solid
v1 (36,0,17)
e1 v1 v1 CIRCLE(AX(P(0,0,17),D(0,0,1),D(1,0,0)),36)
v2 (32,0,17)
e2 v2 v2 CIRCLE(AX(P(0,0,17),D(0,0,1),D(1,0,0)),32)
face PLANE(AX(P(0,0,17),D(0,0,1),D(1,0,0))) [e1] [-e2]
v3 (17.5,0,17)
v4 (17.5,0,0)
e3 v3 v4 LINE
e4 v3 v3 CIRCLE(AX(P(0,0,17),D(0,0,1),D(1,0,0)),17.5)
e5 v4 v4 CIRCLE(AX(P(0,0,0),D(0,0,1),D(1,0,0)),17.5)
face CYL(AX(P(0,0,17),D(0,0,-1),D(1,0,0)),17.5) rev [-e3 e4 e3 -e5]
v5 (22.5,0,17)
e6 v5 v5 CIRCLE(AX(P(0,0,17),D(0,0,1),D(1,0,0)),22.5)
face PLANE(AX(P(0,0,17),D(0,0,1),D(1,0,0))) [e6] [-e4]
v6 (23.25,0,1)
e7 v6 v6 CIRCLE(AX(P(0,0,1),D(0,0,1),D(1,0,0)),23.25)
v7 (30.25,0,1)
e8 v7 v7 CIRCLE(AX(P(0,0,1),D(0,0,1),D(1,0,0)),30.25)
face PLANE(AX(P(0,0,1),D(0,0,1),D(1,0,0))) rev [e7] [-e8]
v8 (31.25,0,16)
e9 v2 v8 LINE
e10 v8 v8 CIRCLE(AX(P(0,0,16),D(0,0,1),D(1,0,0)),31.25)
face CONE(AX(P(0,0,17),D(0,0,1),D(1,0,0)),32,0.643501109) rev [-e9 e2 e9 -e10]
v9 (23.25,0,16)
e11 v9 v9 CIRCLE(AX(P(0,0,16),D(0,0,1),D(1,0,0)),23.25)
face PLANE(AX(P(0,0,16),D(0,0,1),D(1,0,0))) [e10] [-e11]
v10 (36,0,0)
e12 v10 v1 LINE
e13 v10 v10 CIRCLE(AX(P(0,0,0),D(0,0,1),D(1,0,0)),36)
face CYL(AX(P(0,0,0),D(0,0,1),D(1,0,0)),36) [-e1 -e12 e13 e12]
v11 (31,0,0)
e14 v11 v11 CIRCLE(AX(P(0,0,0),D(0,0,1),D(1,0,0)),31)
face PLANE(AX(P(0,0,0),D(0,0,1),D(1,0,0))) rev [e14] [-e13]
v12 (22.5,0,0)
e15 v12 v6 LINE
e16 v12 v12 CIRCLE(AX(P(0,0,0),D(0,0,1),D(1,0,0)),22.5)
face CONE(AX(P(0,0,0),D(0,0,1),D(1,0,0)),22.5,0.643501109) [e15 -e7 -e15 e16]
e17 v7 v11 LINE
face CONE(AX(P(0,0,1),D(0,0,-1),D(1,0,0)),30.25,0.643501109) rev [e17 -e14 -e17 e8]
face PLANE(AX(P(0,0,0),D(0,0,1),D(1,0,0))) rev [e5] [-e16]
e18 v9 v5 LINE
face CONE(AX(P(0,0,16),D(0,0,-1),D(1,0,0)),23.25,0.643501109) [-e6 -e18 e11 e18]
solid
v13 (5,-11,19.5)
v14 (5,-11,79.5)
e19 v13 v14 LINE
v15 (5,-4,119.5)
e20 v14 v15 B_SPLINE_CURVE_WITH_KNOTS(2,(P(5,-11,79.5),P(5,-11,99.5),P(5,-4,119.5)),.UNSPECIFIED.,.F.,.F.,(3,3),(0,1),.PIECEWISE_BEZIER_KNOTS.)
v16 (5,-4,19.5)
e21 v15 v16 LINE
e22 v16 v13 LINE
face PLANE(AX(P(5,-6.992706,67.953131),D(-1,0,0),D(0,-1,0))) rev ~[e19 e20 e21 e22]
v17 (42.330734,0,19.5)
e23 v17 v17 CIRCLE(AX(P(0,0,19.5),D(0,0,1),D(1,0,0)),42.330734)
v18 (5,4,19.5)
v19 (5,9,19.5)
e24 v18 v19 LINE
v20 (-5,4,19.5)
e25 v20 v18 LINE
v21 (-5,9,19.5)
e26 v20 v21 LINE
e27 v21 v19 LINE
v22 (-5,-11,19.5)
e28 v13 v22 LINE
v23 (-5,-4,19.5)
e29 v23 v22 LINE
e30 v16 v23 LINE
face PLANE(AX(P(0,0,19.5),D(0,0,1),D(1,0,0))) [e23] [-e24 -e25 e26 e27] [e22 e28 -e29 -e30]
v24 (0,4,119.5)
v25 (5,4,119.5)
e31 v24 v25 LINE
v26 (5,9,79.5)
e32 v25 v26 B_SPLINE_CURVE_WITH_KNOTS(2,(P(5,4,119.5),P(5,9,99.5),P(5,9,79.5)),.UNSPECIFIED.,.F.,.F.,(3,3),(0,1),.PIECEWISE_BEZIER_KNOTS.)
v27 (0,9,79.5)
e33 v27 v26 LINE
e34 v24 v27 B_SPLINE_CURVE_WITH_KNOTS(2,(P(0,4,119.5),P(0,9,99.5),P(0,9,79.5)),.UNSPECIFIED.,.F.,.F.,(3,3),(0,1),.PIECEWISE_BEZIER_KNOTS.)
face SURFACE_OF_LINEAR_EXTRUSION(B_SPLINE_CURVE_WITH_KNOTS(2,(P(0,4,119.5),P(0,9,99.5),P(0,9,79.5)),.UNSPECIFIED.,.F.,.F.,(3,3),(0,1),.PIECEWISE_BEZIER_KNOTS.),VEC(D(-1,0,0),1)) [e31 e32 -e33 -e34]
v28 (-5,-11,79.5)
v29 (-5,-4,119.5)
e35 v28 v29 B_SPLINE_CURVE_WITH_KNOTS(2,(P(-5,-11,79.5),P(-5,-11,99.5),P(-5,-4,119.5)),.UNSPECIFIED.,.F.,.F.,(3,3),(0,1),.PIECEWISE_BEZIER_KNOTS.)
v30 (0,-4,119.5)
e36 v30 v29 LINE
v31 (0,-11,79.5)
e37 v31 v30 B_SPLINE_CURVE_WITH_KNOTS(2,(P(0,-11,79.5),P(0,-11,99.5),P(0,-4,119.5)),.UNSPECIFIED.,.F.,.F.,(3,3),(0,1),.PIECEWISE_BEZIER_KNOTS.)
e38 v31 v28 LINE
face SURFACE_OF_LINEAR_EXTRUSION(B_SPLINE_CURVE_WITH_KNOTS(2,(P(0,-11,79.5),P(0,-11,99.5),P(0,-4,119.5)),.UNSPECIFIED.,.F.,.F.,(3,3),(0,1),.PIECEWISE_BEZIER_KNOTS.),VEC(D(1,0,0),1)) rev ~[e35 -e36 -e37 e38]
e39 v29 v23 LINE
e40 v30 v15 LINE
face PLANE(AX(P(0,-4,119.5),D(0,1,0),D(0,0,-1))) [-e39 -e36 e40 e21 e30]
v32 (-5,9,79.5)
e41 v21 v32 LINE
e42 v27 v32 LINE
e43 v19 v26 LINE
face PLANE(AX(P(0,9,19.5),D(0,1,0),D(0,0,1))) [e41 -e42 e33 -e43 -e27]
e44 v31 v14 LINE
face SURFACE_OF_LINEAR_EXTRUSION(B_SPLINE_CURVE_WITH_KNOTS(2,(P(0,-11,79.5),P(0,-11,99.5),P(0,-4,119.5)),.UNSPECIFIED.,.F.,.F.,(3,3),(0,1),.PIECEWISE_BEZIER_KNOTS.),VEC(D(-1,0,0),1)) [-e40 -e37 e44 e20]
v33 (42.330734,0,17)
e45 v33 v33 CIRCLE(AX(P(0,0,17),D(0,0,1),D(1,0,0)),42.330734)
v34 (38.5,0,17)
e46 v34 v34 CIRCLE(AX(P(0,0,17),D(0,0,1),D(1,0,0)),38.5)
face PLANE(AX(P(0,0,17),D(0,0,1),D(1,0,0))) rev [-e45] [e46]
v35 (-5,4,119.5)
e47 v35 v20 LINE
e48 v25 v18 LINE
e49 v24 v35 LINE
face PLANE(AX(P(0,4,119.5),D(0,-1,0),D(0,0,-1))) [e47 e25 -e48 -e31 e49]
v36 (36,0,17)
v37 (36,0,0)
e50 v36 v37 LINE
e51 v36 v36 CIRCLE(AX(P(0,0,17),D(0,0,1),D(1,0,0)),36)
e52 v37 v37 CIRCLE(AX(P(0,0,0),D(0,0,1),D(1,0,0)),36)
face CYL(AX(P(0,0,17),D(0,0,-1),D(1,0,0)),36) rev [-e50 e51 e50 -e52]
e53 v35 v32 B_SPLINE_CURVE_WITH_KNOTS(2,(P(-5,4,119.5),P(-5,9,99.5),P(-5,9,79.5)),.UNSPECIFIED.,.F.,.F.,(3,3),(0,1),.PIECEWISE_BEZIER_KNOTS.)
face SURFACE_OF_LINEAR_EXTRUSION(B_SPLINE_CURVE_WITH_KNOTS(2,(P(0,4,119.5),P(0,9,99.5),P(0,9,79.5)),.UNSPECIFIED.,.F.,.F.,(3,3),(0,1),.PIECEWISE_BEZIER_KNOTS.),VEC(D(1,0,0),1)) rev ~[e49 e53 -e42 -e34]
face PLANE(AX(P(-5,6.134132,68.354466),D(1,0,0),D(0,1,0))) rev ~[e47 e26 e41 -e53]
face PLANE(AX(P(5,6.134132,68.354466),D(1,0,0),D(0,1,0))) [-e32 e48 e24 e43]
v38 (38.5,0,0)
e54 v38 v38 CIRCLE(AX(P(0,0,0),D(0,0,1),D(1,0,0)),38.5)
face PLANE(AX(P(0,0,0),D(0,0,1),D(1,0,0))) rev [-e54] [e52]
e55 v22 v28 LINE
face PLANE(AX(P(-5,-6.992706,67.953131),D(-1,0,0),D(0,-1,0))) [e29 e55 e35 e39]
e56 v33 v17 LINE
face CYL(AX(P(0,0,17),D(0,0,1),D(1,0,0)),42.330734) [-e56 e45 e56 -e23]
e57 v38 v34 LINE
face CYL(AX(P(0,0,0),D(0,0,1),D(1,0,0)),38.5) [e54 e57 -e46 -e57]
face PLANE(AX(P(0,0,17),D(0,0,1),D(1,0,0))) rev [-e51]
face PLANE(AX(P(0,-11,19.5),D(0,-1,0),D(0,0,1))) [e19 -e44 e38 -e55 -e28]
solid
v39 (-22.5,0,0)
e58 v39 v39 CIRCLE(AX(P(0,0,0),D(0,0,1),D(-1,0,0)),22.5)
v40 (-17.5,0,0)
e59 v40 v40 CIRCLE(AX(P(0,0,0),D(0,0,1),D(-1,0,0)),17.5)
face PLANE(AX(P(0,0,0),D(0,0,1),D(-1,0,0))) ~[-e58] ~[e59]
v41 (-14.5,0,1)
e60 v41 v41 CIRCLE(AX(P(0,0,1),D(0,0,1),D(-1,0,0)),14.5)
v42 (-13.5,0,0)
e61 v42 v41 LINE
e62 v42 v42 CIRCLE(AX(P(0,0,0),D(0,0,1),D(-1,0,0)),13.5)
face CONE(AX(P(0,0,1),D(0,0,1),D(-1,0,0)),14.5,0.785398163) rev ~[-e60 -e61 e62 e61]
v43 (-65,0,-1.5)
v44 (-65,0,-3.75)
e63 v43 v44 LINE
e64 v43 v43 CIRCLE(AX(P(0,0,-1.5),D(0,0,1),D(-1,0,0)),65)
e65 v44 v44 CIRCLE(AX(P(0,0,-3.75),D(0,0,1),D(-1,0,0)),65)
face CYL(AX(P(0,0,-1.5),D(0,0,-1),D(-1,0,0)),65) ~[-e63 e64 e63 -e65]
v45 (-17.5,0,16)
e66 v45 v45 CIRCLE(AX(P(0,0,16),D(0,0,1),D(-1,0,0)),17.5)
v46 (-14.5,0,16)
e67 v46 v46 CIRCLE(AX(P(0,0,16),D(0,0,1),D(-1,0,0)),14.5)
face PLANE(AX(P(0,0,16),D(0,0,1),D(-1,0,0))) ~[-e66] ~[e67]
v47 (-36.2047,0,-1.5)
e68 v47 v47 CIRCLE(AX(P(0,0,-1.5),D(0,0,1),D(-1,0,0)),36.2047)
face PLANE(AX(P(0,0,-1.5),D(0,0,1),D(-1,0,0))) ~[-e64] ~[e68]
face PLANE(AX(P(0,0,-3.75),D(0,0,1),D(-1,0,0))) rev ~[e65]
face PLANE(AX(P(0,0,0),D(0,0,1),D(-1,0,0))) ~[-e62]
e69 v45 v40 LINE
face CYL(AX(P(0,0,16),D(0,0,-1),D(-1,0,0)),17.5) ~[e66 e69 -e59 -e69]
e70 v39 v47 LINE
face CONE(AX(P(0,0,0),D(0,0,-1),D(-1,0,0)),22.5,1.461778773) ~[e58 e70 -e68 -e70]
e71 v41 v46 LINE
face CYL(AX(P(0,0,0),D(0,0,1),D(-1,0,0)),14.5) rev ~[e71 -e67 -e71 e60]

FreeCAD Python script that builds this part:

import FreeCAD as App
import Part
import Sketcher
from FreeCAD import Vector


def edges_at(feature, points):
    """Names of the edges that pass closest to the given points."""
    edges = feature.Shape.Edges
    near = lambda p: min(range(len(edges)), key=lambda i: edges[i].distToShape(Part.Vertex(*p))[0])
    return sorted({f"Edge{near(p) + 1}" for p in points})


def add_polygon(sketch, points):
    """Adds a closed chain of lines whose ends are joined by coincident constraints."""
    first, n = sketch.GeometryCount, len(points)
    for a, b in zip(points, points[1:] + points[:1]):
        sketch.addGeometry(Part.LineSegment(App.Vector(*a, 0), App.Vector(*b, 0)), False)
    for i in range(n):
        sketch.addConstraint(Sketcher.Constraint("Coincident", first + i, 2, first + (i + 1) % n, 1))

doc = App.newDocument("Part")
body = doc.addObject("PartDesign::Body", "Body")

sketch1 = body.newObject("Sketcher::SketchObject", "Sketch")
sketch1.AttachmentSupport = (doc.getObject("XZ_Plane"), [""])
sketch1.MapMode = "FlatFace"
add_polygon(sketch1, [(17.5, 17), (17.5, 0), (22.5, 0), (23.25, 1), (30.25, 1), (31, 0), (36, 0), (36, 17), (32, 17), (31.25, 16), (23.25, 16), (22.5, 17)])
sketch1.addConstraint(Sketcher.Constraint("Vertical", 0))
sketch1.addConstraint(Sketcher.Constraint("Horizontal", 1))
sketch1.addConstraint(Sketcher.Constraint("Horizontal", 3))
sketch1.addConstraint(Sketcher.Constraint("Horizontal", 5))
sketch1.addConstraint(Sketcher.Constraint("Vertical", 6))
sketch1.addConstraint(Sketcher.Constraint("Horizontal", 7))
sketch1.addConstraint(Sketcher.Constraint("Horizontal", 9))
sketch1.addConstraint(Sketcher.Constraint("Horizontal", 11))
sketch1.addConstraint(Sketcher.Constraint("PointOnObject", 0, 2, -1))
sketch1.addConstraint(Sketcher.Constraint("PointOnObject", 4, 2, -1))
sketch1.addConstraint(Sketcher.Constraint("Parallel", 2, 8))
sketch1.addConstraint(Sketcher.Constraint("Parallel", 4, 10))
sketch1.addConstraint(Sketcher.Constraint("Horizontal", 7, 2, 10, 2))
sketch1.addConstraint(Sketcher.Constraint("Vertical", 2, 2, 9, 2))
sketch1.addConstraint(Sketcher.Constraint("Vertical", 1, 2, 10, 2))
sketch1.addConstraint(Sketcher.Constraint("Equal", 1, 5))
sketch1.addConstraint(Sketcher.Constraint("Equal", 2, 4))
sketch1.addConstraint(Sketcher.Constraint("DistanceX", 1, 1, 1, 2, 5.0))
sketch1.addConstraint(Sketcher.Constraint("DistanceX", 3, 1, 3, 2, 7.0))
sketch1.addConstraint(Sketcher.Constraint("DistanceX", 7, 2, 7, 1, 4.0))
sketch1.addConstraint(Sketcher.Constraint("DistanceY", 0, 2, 0, 1, 17.0))
sketch1.addConstraint(Sketcher.Constraint("DistanceY", -1, 1, 2, 2, 1.0))
sketch1.addConstraint(Sketcher.Constraint("DistanceX", -1, 1, 4, 2, 31.0))
sketch1.addConstraint(Sketcher.Constraint("DistanceX", -1, 1, 0, 2, 17.5))
revolution = body.newObject("PartDesign::Revolution", "Revolution")
revolution.Profile = sketch1
revolution.ReferenceAxis = (sketch1, ["V_Axis"])
revolution.Angle = 360
body2 = doc.addObject("PartDesign::Body", "Body001")

sketch2 = body2.newObject("Sketcher::SketchObject", "Sketch001")
sketch2.AttachmentSupport = (doc.getObject("XZ_Plane001"), [""])
sketch2.MapMode = "FlatFace"
add_polygon(sketch2, [(0, 0), (-14.5, 0), (-14.5, 16), (-17.5, 16), (-17.5, 0), (-22.5, 0), (-22.5, -2.5), (0, -2.5)])
sketch2.addConstraint(Sketcher.Constraint("Horizontal", 0))
sketch2.addConstraint(Sketcher.Constraint("Vertical", 1))
sketch2.addConstraint(Sketcher.Constraint("Horizontal", 2))
sketch2.addConstraint(Sketcher.Constraint("Vertical", 3))
sketch2.addConstraint(Sketcher.Constraint("Horizontal", 4))
sketch2.addConstraint(Sketcher.Constraint("Vertical", 5))
sketch2.addConstraint(Sketcher.Constraint("Horizontal", 6))
sketch2.addConstraint(Sketcher.Constraint("Vertical", 7))
sketch2.addConstraint(Sketcher.Constraint("Coincident", 7, 2, -1, 1))
sketch2.addConstraint(Sketcher.Constraint("PointOnObject", 3, 2, -1))
sketch2.addConstraint(Sketcher.Constraint("DistanceX", 2, 2, 2, 1, 3.0))
sketch2.addConstraint(Sketcher.Constraint("DistanceX", 4, 2, 4, 1, 5.0))
sketch2.addConstraint(Sketcher.Constraint("DistanceY", 1, 1, 1, 2, 16.0))
sketch2.addConstraint(Sketcher.Constraint("DistanceX", 0, 2, 0, 1, 14.5))
sketch2.addConstraint(Sketcher.Constraint("DistanceY", 5, 2, 5, 1, 2.5))
revolution2 = body2.newObject("PartDesign::Revolution", "Revolution001")
revolution2.Profile = sketch2
revolution2.ReferenceAxis = (sketch2, ["V_Axis"])
revolution2.Angle = 360
doc.recompute()

chamfer = body2.newObject("PartDesign::Chamfer", "Chamfer")
chamfer.Base = (revolution2, edges_at(revolution2, [(14.5, 0, 0)]))
chamfer.Size = 1

sketch3 = body2.newObject("Sketcher::SketchObject", "Sketch002")
sketch3.AttachmentSupport = (doc.getObject("XZ_Plane001"), [""])
sketch3.MapMode = "FlatFace"
add_polygon(sketch3, [(-22.5, 0), (-36.2047, -1.5), (-65, -1.5), (-65, -3.75), (0, -3.75), (0, -2.5), (-22.5, -2.5)])
sketch3.addConstraint(Sketcher.Constraint("Horizontal", 1))
sketch3.addConstraint(Sketcher.Constraint("Vertical", 2))
sketch3.addConstraint(Sketcher.Constraint("Horizontal", 3))
sketch3.addConstraint(Sketcher.Constraint("Vertical", 4))
sketch3.addConstraint(Sketcher.Constraint("Horizontal", 5))
sketch3.addConstraint(Sketcher.Constraint("Vertical", 6))
sketch3.addConstraint(Sketcher.Constraint("PointOnObject", 3, 2, -2))
sketch3.addConstraint(Sketcher.Constraint("PointOnObject", 6, 2, -1))
sketch3.addConstraint(Sketcher.Constraint("DistanceX", 3, 1, 3, 2, 65.0))
sketch3.addConstraint(Sketcher.Constraint("DistanceX", 5, 2, 5, 1, 22.5))
sketch3.addConstraint(Sketcher.Constraint("DistanceY", 6, 1, 6, 2, 2.5))
sketch3.addConstraint(Sketcher.Constraint("DistanceY", 4, 2, 0, 2, 1.0))
sketch3.addConstraint(Sketcher.Constraint("DistanceY", 2, 2, 2, 1, 2.25))
sketch3.addConstraint(Sketcher.Constraint("DistanceX", 1, 2, 1, 1, 28.7953))
revolution3 = body2.newObject("PartDesign::Revolution", "Revolution002")
revolution3.Profile = sketch3
revolution3.ReferenceAxis = (sketch3, ["V_Axis"])
revolution3.Angle = 360
body3 = doc.addObject("PartDesign::Body", "Body002")

sketch4 = body3.newObject("Sketcher::SketchObject", "Sketch003")
sketch4.AttachmentSupport = (doc.getObject("XZ_Plane002"), [""])
sketch4.MapMode = "FlatFace"
add_polygon(sketch4, [(36, 17), (36, 0), (38.5, 0), (38.5, 17), (42.330734, 17), (42.330734, 19.5), (0, 19.5), (0, 17)])
sketch4.addConstraint(Sketcher.Constraint("Vertical", 0))
sketch4.addConstraint(Sketcher.Constraint("Horizontal", 1))
sketch4.addConstraint(Sketcher.Constraint("Vertical", 2))
sketch4.addConstraint(Sketcher.Constraint("Horizontal", 3))
sketch4.addConstraint(Sketcher.Constraint("Vertical", 4))
sketch4.addConstraint(Sketcher.Constraint("Horizontal", 5))
sketch4.addConstraint(Sketcher.Constraint("Vertical", 6))
sketch4.addConstraint(Sketcher.Constraint("Horizontal", 7))
sketch4.addConstraint(Sketcher.Constraint("PointOnObject", 0, 2, -1))
sketch4.addConstraint(Sketcher.Constraint("PointOnObject", 5, 2, -2))
sketch4.addConstraint(Sketcher.Constraint("Horizontal", 3, 2, 6, 2))
sketch4.addConstraint(Sketcher.Constraint("Equal", 1, 4))
sketch4.addConstraint(Sketcher.Constraint("DistanceX", 7, 1, 7, 2, 36.0))
sketch4.addConstraint(Sketcher.Constraint("DistanceY", 0, 2, 0, 1, 17.0))
sketch4.addConstraint(Sketcher.Constraint("DistanceX", 1, 1, 1, 2, 2.5))
sketch4.addConstraint(Sketcher.Constraint("DistanceX", 3, 1, 3, 2, 3.830734))
revolution4 = body3.newObject("PartDesign::Revolution", "Revolution003")
revolution4.Profile = sketch4
revolution4.ReferenceAxis = (sketch4, ["V_Axis"])
revolution4.Angle = 360

sketch5 = body3.newObject("Sketcher::SketchObject", "Sketch004")
sketch5.AttachmentSupport = (doc.getObject("YZ_Plane002"), [""])
sketch5.MapMode = "FlatFace"
sketch5.addGeometry(Part.LineSegment(Vector(-4, 19.5, 0), Vector(-4, 119.5, 0)), False)
sketch5.addGeometry(Part.BSplineCurve([Vector(-11, 79.5, 0), Vector(-11, 99.5, 0), Vector(-4, 119.5, 0)], [3, 3], [0, 1], False, 2, [1, 1, 1], False), False)
sketch5.addGeometry(Part.LineSegment(Vector(-11, 79.5, 0), Vector(-11, 19.5, 0)), False)
sketch5.addGeometry(Part.LineSegment(Vector(-11, 19.5, 0), Vector(-4, 19.5, 0)), False)
sketch5.addGeometry(Part.LineSegment(Vector(4, 119.5, 0), Vector(4, 19.5, 0)), False)
sketch5.addGeometry(Part.LineSegment(Vector(4, 19.5, 0), Vector(9, 19.5, 0)), False)
sketch5.addGeometry(Part.LineSegment(Vector(9, 19.5, 0), Vector(9, 79.5, 0)), False)
sketch5.addGeometry(Part.BSplineCurve([Vector(4, 119.5, 0), Vector(9, 99.5, 0), Vector(9, 79.5, 0)], [3, 3], [0, 1], False, 2, [1, 1, 1], False), False)
sketch5.addConstraint(Sketcher.Constraint("Block", 1))
sketch5.addConstraint(Sketcher.Constraint("Block", 7))
sketch5.addConstraint(Sketcher.Constraint("Coincident", 0, 2, 1, 2))
sketch5.addConstraint(Sketcher.Constraint("Coincident", 1, 1, 2, 1))
sketch5.addConstraint(Sketcher.Constraint("Coincident", 2, 2, 3, 1))
sketch5.addConstraint(Sketcher.Constraint("Coincident", 3, 2, 0, 1))
sketch5.addConstraint(Sketcher.Constraint("Coincident", 4, 2, 5, 1))
sketch5.addConstraint(Sketcher.Constraint("Coincident", 5, 2, 6, 1))
sketch5.addConstraint(Sketcher.Constraint("Coincident", 6, 2, 7, 2))
sketch5.addConstraint(Sketcher.Constraint("Coincident", 7, 1, 4, 1))
sketch5.addConstraint(Sketcher.Constraint("Vertical", 0))
sketch5.addConstraint(Sketcher.Constraint("Vertical", 2))
sketch5.addConstraint(Sketcher.Constraint("Horizontal", 3))
sketch5.addConstraint(Sketcher.Constraint("Vertical", 4))
sketch5.addConstraint(Sketcher.Constraint("Horizontal", 5))
sketch5.addConstraint(Sketcher.Constraint("Vertical", 6))
sketch5.addConstraint(Sketcher.Constraint("Horizontal", 3, 2, 4, 2))
sketch5.addConstraint(Sketcher.Constraint("DistanceY", 0, 1, 0, 2, 100.0))
pad1 = body3.newObject("PartDesign::Pad", "Pad")
pad1.Profile = sketch5
pad1.Length = 10
pad1.Midplane = True

doc.recompute()
